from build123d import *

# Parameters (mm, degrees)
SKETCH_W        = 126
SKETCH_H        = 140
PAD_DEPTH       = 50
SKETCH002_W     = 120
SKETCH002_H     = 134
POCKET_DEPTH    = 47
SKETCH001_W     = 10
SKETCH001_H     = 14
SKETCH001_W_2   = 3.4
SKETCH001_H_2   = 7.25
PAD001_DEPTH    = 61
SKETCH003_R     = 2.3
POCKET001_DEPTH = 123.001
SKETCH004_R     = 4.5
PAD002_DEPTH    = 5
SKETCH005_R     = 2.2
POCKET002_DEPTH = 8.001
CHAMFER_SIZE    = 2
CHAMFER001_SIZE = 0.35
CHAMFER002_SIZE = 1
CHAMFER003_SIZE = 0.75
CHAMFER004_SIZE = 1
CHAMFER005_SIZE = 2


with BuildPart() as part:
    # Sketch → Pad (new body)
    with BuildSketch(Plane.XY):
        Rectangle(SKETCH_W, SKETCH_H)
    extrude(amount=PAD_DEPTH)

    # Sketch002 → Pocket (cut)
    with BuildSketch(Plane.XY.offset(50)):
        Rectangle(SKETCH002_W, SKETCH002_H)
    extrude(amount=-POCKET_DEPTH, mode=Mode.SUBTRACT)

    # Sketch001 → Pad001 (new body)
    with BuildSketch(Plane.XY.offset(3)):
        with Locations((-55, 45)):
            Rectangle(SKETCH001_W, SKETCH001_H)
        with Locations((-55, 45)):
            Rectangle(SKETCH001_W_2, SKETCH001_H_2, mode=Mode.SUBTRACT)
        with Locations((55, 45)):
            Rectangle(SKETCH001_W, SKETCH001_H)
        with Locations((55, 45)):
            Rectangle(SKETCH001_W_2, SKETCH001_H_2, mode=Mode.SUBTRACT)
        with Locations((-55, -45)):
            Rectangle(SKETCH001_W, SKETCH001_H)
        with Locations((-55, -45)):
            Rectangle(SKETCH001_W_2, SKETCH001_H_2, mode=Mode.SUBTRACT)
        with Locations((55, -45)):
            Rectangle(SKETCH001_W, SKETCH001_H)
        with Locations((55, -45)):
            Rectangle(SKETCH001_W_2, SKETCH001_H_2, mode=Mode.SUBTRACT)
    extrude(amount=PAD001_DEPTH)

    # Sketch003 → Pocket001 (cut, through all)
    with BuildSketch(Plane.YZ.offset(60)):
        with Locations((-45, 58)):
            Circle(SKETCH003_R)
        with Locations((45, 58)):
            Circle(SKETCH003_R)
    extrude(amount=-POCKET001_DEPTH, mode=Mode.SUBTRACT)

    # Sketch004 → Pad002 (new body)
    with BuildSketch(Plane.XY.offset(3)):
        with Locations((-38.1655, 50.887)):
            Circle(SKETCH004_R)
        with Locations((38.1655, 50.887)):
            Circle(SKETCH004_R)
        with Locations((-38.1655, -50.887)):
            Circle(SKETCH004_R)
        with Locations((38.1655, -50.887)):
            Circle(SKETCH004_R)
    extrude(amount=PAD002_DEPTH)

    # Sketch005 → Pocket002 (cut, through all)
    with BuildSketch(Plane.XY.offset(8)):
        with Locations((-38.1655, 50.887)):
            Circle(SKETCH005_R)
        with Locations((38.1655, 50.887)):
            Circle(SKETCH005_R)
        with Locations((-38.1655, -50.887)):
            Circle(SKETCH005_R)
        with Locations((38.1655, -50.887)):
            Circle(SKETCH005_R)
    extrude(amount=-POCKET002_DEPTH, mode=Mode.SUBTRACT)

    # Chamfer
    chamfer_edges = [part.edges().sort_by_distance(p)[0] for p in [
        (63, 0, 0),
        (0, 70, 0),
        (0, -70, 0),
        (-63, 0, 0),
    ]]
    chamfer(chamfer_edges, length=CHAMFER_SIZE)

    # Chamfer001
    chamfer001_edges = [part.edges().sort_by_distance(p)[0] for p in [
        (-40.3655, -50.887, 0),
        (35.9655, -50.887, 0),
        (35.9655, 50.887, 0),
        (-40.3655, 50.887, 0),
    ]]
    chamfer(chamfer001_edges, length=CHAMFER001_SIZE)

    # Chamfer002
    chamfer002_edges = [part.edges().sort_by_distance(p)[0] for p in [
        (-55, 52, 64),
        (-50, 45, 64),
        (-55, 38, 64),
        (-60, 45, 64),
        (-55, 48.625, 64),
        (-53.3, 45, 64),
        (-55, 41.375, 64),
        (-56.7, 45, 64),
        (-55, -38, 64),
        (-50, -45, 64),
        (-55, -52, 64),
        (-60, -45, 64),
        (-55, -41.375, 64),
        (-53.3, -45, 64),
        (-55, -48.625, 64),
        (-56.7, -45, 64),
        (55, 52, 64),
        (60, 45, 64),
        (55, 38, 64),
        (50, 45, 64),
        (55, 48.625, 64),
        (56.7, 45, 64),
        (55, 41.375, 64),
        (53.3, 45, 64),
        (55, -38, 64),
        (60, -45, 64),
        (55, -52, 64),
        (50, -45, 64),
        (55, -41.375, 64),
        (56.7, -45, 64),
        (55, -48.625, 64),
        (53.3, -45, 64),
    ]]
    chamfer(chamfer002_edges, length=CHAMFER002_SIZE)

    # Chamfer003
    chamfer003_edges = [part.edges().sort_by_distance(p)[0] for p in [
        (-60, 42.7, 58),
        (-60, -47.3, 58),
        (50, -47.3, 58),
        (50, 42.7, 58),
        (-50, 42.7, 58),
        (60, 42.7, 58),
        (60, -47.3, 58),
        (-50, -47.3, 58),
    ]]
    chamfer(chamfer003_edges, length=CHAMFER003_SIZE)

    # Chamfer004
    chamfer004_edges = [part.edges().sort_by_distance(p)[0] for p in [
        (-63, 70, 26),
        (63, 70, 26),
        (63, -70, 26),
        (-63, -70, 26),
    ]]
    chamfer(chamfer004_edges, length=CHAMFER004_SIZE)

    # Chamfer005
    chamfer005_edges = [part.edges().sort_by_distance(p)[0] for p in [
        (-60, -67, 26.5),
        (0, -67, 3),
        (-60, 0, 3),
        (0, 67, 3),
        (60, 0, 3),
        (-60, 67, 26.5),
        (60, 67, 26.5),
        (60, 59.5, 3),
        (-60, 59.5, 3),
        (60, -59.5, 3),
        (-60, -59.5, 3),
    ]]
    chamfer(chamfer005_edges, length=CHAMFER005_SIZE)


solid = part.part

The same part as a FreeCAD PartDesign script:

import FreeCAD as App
import Part
import Sketcher

V = App.Vector
Q = App.Units.Quantity


def edges_at(feature, points):
    """Names of the edges that pass closest to the given points."""
    edges = feature.Shape.Edges
    near = lambda p: min(range(len(edges)), key=lambda i: edges[i].distToShape(Part.Vertex(*p))[0])
    return sorted({f"Edge{near(p) + 1}" for p in points})


def add_polygon(sketch, points):
    """Adds a closed chain of lines whose ends are joined by coincident constraints."""
    first, n = sketch.GeometryCount, len(points)
    for a, b in zip(points, points[1:] + points[:1]):
        sketch.addGeometry(Part.LineSegment(App.Vector(*a, 0), App.Vector(*b, 0)), False)
    for i in range(n):
        sketch.addConstraint(Sketcher.Constraint("Coincident", first + i, 2, first + (i + 1) % n, 1))

doc = App.newDocument("Part")
body = doc.addObject("PartDesign::Body", "Body")

# Sketch on XY plane
sketch1 = body.newObject("Sketcher::SketchObject", "Sketch")
sketch1.AttachmentSupport = (doc.getObject("XY_Plane"), [""])
sketch1.MapMode = "FlatFace"
add_polygon(sketch1, [(-63, 70), (-63, -70), (63, -70), (63, 70)])  # lines 0-3
sketch1.addConstraint(Sketcher.Constraint("Vertical", 0))
sketch1.addConstraint(Sketcher.Constraint("Horizontal", 1))
sketch1.addConstraint(Sketcher.Constraint("Vertical", 2))
sketch1.addConstraint(Sketcher.Constraint("Horizontal", 3))
sketch1.addConstraint(Sketcher.Constraint("Symmetric", 0, 2, 2, 2, -1, 1))
sketch1.addConstraint(Sketcher.Constraint("DistanceX", 1, 1, 1, 2, Q("126 mm")))
sketch1.addConstraint(Sketcher.Constraint("DistanceY", 0, 2, 0, 1, Q("140 mm")))
pad1 = body.newObject("PartDesign::Pad", "Pad")
pad1.Profile = sketch1
pad1.Length = 50

# Sketch on XY plane
sketch2 = body.newObject("Sketcher::SketchObject", "Sketch001")
sketch2.AttachmentSupport = (doc.getObject("XY_Plane"), [""])
sketch2.MapMode = "FlatFace"
sketch2.AttachmentOffset = App.Placement(V(0, 0, 50), App.Rotation())
add_polygon(sketch2, [(-60, 67), (-60, -67), (60, -67), (60, 67)])  # lines 0-3
sketch2.addConstraint(Sketcher.Constraint("Vertical", 0))
sketch2.addConstraint(Sketcher.Constraint("Horizontal", 1))
sketch2.addConstraint(Sketcher.Constraint("Vertical", 2))
sketch2.addConstraint(Sketcher.Constraint("Horizontal", 3))
sketch2.addConstraint(Sketcher.Constraint("Symmetric", 0, 2, 2, 2, -1, 1))
sketch2.addConstraint(Sketcher.Constraint("DistanceX", 1, 1, 1, 2, Q("120 mm")))
sketch2.addConstraint(Sketcher.Constraint("DistanceY", 0, 2, 0, 1, Q("134 mm")))
pocket1 = body.newObject("PartDesign::Pocket", "Pocket")
pocket1.Profile = sketch2
pocket1.Length = 47

# Sketch on XY plane
sketch3 = body.newObject("Sketcher::SketchObject", "Sketch002")
sketch3.AttachmentSupport = (doc.getObject("XY_Plane"), [""])
sketch3.MapMode = "FlatFace"
sketch3.AttachmentOffset = App.Placement(V(0, 0, 3), App.Rotation())
add_polygon(sketch3, [(-60, 52), (-60, 38), (-50, 38), (-50, 52)])  # lines 0-3
add_polygon(sketch3, [(-53.3, 41.4), (-56.7, 41.4), (-56.7, 48.6), (-53.3, 48.6)])  # lines 4-7
add_polygon(sketch3, [(50, 52), (50, 38), (60, 38), (60, 52)])  # lines 8-11
add_polygon(sketch3, [(56.7, 41.4), (53.3, 41.4), (53.3, 48.6), (56.7, 48.6)])  # lines 12-15
add_polygon(sketch3, [(-60, -38), (-60, -52), (-50, -52), (-50, -38)])  # lines 16-19
add_polygon(sketch3, [(-53.3, -48.6), (-56.7, -48.6), (-56.7, -41.4), (-53.3, -41.4)])  # lines 20-23
add_polygon(sketch3, [(50, -38), (50, -52), (60, -52), (60, -38)])  # lines 24-27
add_polygon(sketch3, [(56.7, -48.6), (53.3, -48.6), (53.3, -41.4), (56.7, -41.4)])  # lines 28-31
sketch3.addConstraint(Sketcher.Constraint("Vertical", 0))
sketch3.addConstraint(Sketcher.Constraint("Horizontal", 1))
sketch3.addConstraint(Sketcher.Constraint("Vertical", 2))
sketch3.addConstraint(Sketcher.Constraint("Horizontal", 3))
sketch3.addConstraint(Sketcher.Constraint("Horizontal", 4))
sketch3.addConstraint(Sketcher.Constraint("Vertical", 5))
sketch3.addConstraint(Sketcher.Constraint("Horizontal", 6))
sketch3.addConstraint(Sketcher.Constraint("Vertical", 7))
sketch3.addConstraint(Sketcher.Constraint("Vertical", 8))
sketch3.addConstraint(Sketcher.Constraint("Horizontal", 9))
sketch3.addConstraint(Sketcher.Constraint("Vertical", 10))
sketch3.addConstraint(Sketcher.Constraint("Horizontal", 11))
sketch3.addConstraint(Sketcher.Constraint("Horizontal", 12))
sketch3.addConstraint(Sketcher.Constraint("Vertical", 13))
sketch3.addConstraint(Sketcher.Constraint("Horizontal", 14))
sketch3.addConstraint(Sketcher.Constraint("Vertical", 15))
sketch3.addConstraint(Sketcher.Constraint("Vertical", 16))
sketch3.addConstraint(Sketcher.Constraint("Horizontal", 17))
sketch3.addConstraint(Sketcher.Constraint("Vertical", 18))
sketch3.addConstraint(Sketcher.Constraint("Horizontal", 19))
sketch3.addConstraint(Sketcher.Constraint("Horizontal", 20))
sketch3.addConstraint(Sketcher.Constraint("Vertical", 21))
sketch3.addConstraint(Sketcher.Constraint("Horizontal", 22))
sketch3.addConstraint(Sketcher.Constraint("Vertical", 23))
sketch3.addConstraint(Sketcher.Constraint("Vertical", 24))
sketch3.addConstraint(Sketcher.Constraint("Horizontal", 25))
sketch3.addConstraint(Sketcher.Constraint("Vertical", 26))
sketch3.addConstraint(Sketcher.Constraint("Horizontal", 27))
sketch3.addConstraint(Sketcher.Constraint("Horizontal", 28))
sketch3.addConstraint(Sketcher.Constraint("Vertical", 29))
sketch3.addConstraint(Sketcher.Constraint("Horizontal", 30))
sketch3.addConstraint(Sketcher.Constraint("Vertical", 31))
sketch3.addConstraint(Sketcher.Constraint("Symmetric", 10, 2, 16, 2, -1, 1))
sketch3.addConstraint(Sketcher.Constraint("Symmetric", 8, 2, 18, 2, -1, 1))
sketch3.addConstraint(Sketcher.Constraint("Symmetric", 14, 2, 20, 2, -1, 1))
sketch3.addConstraint(Sketcher.Constraint("Symmetric", 12, 2, 22, 2, -1, 1))
sketch3.addConstraint(Sketcher.Constraint("Symmetric", 2, 2, 24, 2, -1, 1))
sketch3.addConstraint(Sketcher.Constraint("Symmetric", 0, 2, 26, 2, -1, 1))
sketch3.addConstraint(Sketcher.Constraint("Symmetric", 6, 2, 28, 2, -1, 1))
sketch3.addConstraint(Sketcher.Constraint("Symmetric", 4, 2, 30, 2, -1, 1))
sketch3.addConstraint(Sketcher.Constraint("Symmetric", 1, 2, 8, 2, -2))
sketch3.addConstraint(Sketcher.Constraint("Symmetric", 3, 2, 10, 2, -2))
sketch3.addConstraint(Sketcher.Constraint("Symmetric", 7, 2, 12, 2, -2))
sketch3.addConstraint(Sketcher.Constraint("Symmetric", 5, 2, 14, 2, -2))
sketch3.addConstraint(Sketcher.Constraint("DistanceX", 1, 1, 1, 2, Q("10 mm")))
sketch3.addConstraint(Sketcher.Constraint("DistanceY", 0, 2, 0, 1, Q("14 mm")))
sketch3.addConstraint(Sketcher.Constraint("DistanceX", 4, 2, 4, 1, Q("3.4 mm")))
sketch3.addConstraint(Sketcher.Constraint("DistanceX", 0, 2, -1, 1, Q("60 mm")))
sketch3.addConstraint(Sketcher.Constraint("DistanceY", -1, 1, 0, 2, Q("38 mm")))
sketch3.addConstraint(Sketcher.Constraint("DistanceY", 5, 1, 5, 2, Q("7.25 mm")))
sketch3.addConstraint(Sketcher.Constraint("DistanceX", 4, 2, -1, 1, Q("56.7 mm")))
sketch3.addConstraint(Sketcher.Constraint("DistanceY", -1, 1, 4, 2, Q("41.375 mm")))
pad2 = body.newObject("PartDesign::Pad", "Pad001")
pad2.Profile = sketch3
pad2.Length = 61

# Sketch on YZ plane
sketch4 = body.newObject("Sketcher::SketchObject", "Sketch003")
sketch4.AttachmentSupport = (doc.getObject("YZ_Plane"), [""])
sketch4.MapMode = "FlatFace"
sketch4.AttachmentOffset = App.Placement(V(0, 0, 60), App.Rotation())
sketch4.addGeometry(Part.Circle(V(-45, 58, 0), V(0, 0, 1), 2.3), False)
sketch4.addGeometry(Part.Circle(V(45, 58, 0), V(0, 0, 1), 2.3), False)
sketch4.addConstraint(Sketcher.Constraint("Equal", 0, 1))
sketch4.addConstraint(Sketcher.Constraint("Symmetric", 0, 3, 1, 3, -2))
sketch4.addConstraint(Sketcher.Constraint("Diameter", 0, Q("4.6 mm")))
sketch4.addConstraint(Sketcher.Constraint("DistanceX", 0, 3, -1, 1, Q("45 mm")))
sketch4.addConstraint(Sketcher.Constraint("DistanceY", -1, 1, 0, 3, Q("58 mm")))
pocket2 = body.newObject("PartDesign::Pocket", "Pocket001")
pocket2.Profile = sketch4
pocket2.Type = "ThroughAll"

# Sketch on XY plane
sketch5 = body.newObject("Sketcher::SketchObject", "Sketch004")
sketch5.AttachmentSupport = (doc.getObject("XY_Plane"), [""])
sketch5.MapMode = "FlatFace"
sketch5.AttachmentOffset = App.Placement(V(0, 0, 3), App.Rotation())
sketch5.addGeometry(Part.Circle(V(-38.2, 50.9, 0), V(0, 0, 1), 4.5), False)
sketch5.addGeometry(Part.Circle(V(38.2, 50.9, 0), V(0, 0, 1), 4.5), False)
sketch5.addGeometry(Part.Circle(V(-38.2, -50.9, 0), V(0, 0, 1), 4.5), False)
sketch5.addGeometry(Part.Circle(V(38.2, -50.9, 0), V(0, 0, 1), 4.5), False)
sketch5.addConstraint(Sketcher.Constraint("Equal", 0, 1))
sketch5.addConstraint(Sketcher.Constraint("Equal", 1, 2))
sketch5.addConstraint(Sketcher.Constraint("Equal", 2, 3))
sketch5.addConstraint(Sketcher.Constraint("Symmetric", 1, 3, 2, 3, -1, 1))
sketch5.addConstraint(Sketcher.Constraint("Symmetric", 0, 3, 3, 3, -1, 1))
sketch5.addConstraint(Sketcher.Constraint("Symmetric", 0, 3, 1, 3, -2))
sketch5.addConstraint(Sketcher.Constraint("Diameter", 0, Q("9 mm")))
sketch5.addConstraint(Sketcher.Constraint("DistanceY", -1, 1, 0, 3, Q("50.887 mm")))
sketch5.addConstraint(Sketcher.Constraint("DistanceX", 0, 3, 1, 3, Q("76.331 mm")))
pad3 = body.newObject("PartDesign::Pad", "Pad002")
pad3.Profile = sketch5
pad3.Length = 5

# Sketch on XY plane
sketch6 = body.newObject("Sketcher::SketchObject", "Sketch005")
sketch6.AttachmentSupport = (doc.getObject("XY_Plane"), [""])
sketch6.MapMode = "FlatFace"
sketch6.AttachmentOffset = App.Placement(V(0, 0, 8), App.Rotation())
sketch6.addGeometry(Part.Circle(V(-38.2, 50.9, 0), V(0, 0, 1), 2.2), False)
sketch6.addGeometry(Part.Circle(V(38.2, 50.9, 0), V(0, 0, 1), 2.2), False)
sketch6.addGeometry(Part.Circle(V(-38.2, -50.9, 0), V(0, 0, 1), 2.2), False)
sketch6.addGeometry(Part.Circle(V(38.2, -50.9, 0), V(0, 0, 1), 2.2), False)
sketch6.addConstraint(Sketcher.Constraint("Equal", 0, 1))
sketch6.addConstraint(Sketcher.Constraint("Equal", 1, 2))
sketch6.addConstraint(Sketcher.Constraint("Equal", 2, 3))
sketch6.addConstraint(Sketcher.Constraint("Symmetric", 1, 3, 2, 3, -1, 1))
sketch6.addConstraint(Sketcher.Constraint("Symmetric", 0, 3, 3, 3, -1, 1))
sketch6.addConstraint(Sketcher.Constraint("Symmetric", 0, 3, 1, 3, -2))
sketch6.addConstraint(Sketcher.Constraint("Diameter", 0, Q("4.4 mm")))
sketch6.addConstraint(Sketcher.Constraint("DistanceY", -1, 1, 0, 3, Q("50.887 mm")))
sketch6.addConstraint(Sketcher.Constraint("DistanceX", 0, 3, 1, 3, Q("76.331 mm")))
pocket3 = body.newObject("PartDesign::Pocket", "Pocket002")
pocket3.Profile = sketch6
pocket3.Type = "ThroughAll"
doc.recompute()

chamfer = body.newObject("PartDesign::Chamfer", "Chamfer")
chamfer.Base = (pocket3, edges_at(pocket3, [
    (63, 0, 0),
    (0, 70, 0),
    (0, -70, 0),
    (-63, 0, 0),
]))
chamfer.Size = 2
doc.recompute()

chamfer2 = body.newObject("PartDesign::Chamfer", "Chamfer001")
chamfer2.Base = (chamfer, edges_at(chamfer, [
    (-40.365, -50.887, 0),
    (35.965, -50.887, 0),
    (35.965, 50.887, 0),
    (-40.365, 50.887, 0),
]))
chamfer2.Size = 0.35
doc.recompute()

chamfer3 = body.newObject("PartDesign::Chamfer", "Chamfer002")
chamfer3.Base = (chamfer2, edges_at(chamfer2, [
    (-55, 52, 64),
    (-50, 45, 64),
    (-55, 38, 64),
    (-60, 45, 64),
    (-55, 48.625, 64),
    (-53.3, 45, 64),
    (-55, 41.375, 64),
    (-56.7, 45, 64),
    (-55, -38, 64),
    (-50, -45, 64),
    (-55, -52, 64),
    (-60, -45, 64),
    (-55, -41.375, 64),
    (-53.3, -45, 64),
    (-55, -48.625, 64),
    (-56.7, -45, 64),
    (55, 52, 64),
    (60, 45, 64),
    (55, 38, 64),
    (50, 45, 64),
    (55, 48.625, 64),
    (56.7, 45, 64),
    (55, 41.375, 64),
    (53.3, 45, 64),
    (55, -38, 64),
    (60, -45, 64),
    (55, -52, 64),
    (50, -45, 64),
    (55, -41.375, 64),
    (56.7, -45, 64),
    (55, -48.625, 64),
    (53.3, -45, 64),
]))
chamfer3.Size = 1
doc.recompute()

chamfer4 = body.newObject("PartDesign::Chamfer", "Chamfer003")
chamfer4.Base = (chamfer3, edges_at(chamfer3, [
    (-60, 42.7, 58),
    (-60, -47.3, 58),
    (50, -47.3, 58),
    (50, 42.7, 58),
    (-50, 42.7, 58),
    (60, 42.7, 58),
    (60, -47.3, 58),
    (-50, -47.3, 58),
]))
chamfer4.Size = 0.75
doc.recompute()

chamfer5 = body.newObject("PartDesign::Chamfer", "Chamfer004")
chamfer5.Base = (chamfer4, edges_at(chamfer4, [
    (-63, 70, 26),
    (63, 70, 26),
    (63, -70, 26),
    (-63, -70, 26),
]))
chamfer5.Size = 1
doc.recompute()

chamfer6 = body.newObject("PartDesign::Chamfer", "Chamfer005")
chamfer6.Base = (chamfer5, edges_at(chamfer5, [
    (-60, -67, 26.5),
    (0, -67, 3),
    (-60, 0, 3),
    (0, 67, 3),
    (60, 0, 3),
    (-60, 67, 26.5),
    (60, 67, 26.5),
    (60, 59.5, 3),
    (-60, 59.5, 3),
    (60, -59.5, 3),
    (-60, -59.5, 3),
]))
chamfer6.Size = 2

doc.recompute()
